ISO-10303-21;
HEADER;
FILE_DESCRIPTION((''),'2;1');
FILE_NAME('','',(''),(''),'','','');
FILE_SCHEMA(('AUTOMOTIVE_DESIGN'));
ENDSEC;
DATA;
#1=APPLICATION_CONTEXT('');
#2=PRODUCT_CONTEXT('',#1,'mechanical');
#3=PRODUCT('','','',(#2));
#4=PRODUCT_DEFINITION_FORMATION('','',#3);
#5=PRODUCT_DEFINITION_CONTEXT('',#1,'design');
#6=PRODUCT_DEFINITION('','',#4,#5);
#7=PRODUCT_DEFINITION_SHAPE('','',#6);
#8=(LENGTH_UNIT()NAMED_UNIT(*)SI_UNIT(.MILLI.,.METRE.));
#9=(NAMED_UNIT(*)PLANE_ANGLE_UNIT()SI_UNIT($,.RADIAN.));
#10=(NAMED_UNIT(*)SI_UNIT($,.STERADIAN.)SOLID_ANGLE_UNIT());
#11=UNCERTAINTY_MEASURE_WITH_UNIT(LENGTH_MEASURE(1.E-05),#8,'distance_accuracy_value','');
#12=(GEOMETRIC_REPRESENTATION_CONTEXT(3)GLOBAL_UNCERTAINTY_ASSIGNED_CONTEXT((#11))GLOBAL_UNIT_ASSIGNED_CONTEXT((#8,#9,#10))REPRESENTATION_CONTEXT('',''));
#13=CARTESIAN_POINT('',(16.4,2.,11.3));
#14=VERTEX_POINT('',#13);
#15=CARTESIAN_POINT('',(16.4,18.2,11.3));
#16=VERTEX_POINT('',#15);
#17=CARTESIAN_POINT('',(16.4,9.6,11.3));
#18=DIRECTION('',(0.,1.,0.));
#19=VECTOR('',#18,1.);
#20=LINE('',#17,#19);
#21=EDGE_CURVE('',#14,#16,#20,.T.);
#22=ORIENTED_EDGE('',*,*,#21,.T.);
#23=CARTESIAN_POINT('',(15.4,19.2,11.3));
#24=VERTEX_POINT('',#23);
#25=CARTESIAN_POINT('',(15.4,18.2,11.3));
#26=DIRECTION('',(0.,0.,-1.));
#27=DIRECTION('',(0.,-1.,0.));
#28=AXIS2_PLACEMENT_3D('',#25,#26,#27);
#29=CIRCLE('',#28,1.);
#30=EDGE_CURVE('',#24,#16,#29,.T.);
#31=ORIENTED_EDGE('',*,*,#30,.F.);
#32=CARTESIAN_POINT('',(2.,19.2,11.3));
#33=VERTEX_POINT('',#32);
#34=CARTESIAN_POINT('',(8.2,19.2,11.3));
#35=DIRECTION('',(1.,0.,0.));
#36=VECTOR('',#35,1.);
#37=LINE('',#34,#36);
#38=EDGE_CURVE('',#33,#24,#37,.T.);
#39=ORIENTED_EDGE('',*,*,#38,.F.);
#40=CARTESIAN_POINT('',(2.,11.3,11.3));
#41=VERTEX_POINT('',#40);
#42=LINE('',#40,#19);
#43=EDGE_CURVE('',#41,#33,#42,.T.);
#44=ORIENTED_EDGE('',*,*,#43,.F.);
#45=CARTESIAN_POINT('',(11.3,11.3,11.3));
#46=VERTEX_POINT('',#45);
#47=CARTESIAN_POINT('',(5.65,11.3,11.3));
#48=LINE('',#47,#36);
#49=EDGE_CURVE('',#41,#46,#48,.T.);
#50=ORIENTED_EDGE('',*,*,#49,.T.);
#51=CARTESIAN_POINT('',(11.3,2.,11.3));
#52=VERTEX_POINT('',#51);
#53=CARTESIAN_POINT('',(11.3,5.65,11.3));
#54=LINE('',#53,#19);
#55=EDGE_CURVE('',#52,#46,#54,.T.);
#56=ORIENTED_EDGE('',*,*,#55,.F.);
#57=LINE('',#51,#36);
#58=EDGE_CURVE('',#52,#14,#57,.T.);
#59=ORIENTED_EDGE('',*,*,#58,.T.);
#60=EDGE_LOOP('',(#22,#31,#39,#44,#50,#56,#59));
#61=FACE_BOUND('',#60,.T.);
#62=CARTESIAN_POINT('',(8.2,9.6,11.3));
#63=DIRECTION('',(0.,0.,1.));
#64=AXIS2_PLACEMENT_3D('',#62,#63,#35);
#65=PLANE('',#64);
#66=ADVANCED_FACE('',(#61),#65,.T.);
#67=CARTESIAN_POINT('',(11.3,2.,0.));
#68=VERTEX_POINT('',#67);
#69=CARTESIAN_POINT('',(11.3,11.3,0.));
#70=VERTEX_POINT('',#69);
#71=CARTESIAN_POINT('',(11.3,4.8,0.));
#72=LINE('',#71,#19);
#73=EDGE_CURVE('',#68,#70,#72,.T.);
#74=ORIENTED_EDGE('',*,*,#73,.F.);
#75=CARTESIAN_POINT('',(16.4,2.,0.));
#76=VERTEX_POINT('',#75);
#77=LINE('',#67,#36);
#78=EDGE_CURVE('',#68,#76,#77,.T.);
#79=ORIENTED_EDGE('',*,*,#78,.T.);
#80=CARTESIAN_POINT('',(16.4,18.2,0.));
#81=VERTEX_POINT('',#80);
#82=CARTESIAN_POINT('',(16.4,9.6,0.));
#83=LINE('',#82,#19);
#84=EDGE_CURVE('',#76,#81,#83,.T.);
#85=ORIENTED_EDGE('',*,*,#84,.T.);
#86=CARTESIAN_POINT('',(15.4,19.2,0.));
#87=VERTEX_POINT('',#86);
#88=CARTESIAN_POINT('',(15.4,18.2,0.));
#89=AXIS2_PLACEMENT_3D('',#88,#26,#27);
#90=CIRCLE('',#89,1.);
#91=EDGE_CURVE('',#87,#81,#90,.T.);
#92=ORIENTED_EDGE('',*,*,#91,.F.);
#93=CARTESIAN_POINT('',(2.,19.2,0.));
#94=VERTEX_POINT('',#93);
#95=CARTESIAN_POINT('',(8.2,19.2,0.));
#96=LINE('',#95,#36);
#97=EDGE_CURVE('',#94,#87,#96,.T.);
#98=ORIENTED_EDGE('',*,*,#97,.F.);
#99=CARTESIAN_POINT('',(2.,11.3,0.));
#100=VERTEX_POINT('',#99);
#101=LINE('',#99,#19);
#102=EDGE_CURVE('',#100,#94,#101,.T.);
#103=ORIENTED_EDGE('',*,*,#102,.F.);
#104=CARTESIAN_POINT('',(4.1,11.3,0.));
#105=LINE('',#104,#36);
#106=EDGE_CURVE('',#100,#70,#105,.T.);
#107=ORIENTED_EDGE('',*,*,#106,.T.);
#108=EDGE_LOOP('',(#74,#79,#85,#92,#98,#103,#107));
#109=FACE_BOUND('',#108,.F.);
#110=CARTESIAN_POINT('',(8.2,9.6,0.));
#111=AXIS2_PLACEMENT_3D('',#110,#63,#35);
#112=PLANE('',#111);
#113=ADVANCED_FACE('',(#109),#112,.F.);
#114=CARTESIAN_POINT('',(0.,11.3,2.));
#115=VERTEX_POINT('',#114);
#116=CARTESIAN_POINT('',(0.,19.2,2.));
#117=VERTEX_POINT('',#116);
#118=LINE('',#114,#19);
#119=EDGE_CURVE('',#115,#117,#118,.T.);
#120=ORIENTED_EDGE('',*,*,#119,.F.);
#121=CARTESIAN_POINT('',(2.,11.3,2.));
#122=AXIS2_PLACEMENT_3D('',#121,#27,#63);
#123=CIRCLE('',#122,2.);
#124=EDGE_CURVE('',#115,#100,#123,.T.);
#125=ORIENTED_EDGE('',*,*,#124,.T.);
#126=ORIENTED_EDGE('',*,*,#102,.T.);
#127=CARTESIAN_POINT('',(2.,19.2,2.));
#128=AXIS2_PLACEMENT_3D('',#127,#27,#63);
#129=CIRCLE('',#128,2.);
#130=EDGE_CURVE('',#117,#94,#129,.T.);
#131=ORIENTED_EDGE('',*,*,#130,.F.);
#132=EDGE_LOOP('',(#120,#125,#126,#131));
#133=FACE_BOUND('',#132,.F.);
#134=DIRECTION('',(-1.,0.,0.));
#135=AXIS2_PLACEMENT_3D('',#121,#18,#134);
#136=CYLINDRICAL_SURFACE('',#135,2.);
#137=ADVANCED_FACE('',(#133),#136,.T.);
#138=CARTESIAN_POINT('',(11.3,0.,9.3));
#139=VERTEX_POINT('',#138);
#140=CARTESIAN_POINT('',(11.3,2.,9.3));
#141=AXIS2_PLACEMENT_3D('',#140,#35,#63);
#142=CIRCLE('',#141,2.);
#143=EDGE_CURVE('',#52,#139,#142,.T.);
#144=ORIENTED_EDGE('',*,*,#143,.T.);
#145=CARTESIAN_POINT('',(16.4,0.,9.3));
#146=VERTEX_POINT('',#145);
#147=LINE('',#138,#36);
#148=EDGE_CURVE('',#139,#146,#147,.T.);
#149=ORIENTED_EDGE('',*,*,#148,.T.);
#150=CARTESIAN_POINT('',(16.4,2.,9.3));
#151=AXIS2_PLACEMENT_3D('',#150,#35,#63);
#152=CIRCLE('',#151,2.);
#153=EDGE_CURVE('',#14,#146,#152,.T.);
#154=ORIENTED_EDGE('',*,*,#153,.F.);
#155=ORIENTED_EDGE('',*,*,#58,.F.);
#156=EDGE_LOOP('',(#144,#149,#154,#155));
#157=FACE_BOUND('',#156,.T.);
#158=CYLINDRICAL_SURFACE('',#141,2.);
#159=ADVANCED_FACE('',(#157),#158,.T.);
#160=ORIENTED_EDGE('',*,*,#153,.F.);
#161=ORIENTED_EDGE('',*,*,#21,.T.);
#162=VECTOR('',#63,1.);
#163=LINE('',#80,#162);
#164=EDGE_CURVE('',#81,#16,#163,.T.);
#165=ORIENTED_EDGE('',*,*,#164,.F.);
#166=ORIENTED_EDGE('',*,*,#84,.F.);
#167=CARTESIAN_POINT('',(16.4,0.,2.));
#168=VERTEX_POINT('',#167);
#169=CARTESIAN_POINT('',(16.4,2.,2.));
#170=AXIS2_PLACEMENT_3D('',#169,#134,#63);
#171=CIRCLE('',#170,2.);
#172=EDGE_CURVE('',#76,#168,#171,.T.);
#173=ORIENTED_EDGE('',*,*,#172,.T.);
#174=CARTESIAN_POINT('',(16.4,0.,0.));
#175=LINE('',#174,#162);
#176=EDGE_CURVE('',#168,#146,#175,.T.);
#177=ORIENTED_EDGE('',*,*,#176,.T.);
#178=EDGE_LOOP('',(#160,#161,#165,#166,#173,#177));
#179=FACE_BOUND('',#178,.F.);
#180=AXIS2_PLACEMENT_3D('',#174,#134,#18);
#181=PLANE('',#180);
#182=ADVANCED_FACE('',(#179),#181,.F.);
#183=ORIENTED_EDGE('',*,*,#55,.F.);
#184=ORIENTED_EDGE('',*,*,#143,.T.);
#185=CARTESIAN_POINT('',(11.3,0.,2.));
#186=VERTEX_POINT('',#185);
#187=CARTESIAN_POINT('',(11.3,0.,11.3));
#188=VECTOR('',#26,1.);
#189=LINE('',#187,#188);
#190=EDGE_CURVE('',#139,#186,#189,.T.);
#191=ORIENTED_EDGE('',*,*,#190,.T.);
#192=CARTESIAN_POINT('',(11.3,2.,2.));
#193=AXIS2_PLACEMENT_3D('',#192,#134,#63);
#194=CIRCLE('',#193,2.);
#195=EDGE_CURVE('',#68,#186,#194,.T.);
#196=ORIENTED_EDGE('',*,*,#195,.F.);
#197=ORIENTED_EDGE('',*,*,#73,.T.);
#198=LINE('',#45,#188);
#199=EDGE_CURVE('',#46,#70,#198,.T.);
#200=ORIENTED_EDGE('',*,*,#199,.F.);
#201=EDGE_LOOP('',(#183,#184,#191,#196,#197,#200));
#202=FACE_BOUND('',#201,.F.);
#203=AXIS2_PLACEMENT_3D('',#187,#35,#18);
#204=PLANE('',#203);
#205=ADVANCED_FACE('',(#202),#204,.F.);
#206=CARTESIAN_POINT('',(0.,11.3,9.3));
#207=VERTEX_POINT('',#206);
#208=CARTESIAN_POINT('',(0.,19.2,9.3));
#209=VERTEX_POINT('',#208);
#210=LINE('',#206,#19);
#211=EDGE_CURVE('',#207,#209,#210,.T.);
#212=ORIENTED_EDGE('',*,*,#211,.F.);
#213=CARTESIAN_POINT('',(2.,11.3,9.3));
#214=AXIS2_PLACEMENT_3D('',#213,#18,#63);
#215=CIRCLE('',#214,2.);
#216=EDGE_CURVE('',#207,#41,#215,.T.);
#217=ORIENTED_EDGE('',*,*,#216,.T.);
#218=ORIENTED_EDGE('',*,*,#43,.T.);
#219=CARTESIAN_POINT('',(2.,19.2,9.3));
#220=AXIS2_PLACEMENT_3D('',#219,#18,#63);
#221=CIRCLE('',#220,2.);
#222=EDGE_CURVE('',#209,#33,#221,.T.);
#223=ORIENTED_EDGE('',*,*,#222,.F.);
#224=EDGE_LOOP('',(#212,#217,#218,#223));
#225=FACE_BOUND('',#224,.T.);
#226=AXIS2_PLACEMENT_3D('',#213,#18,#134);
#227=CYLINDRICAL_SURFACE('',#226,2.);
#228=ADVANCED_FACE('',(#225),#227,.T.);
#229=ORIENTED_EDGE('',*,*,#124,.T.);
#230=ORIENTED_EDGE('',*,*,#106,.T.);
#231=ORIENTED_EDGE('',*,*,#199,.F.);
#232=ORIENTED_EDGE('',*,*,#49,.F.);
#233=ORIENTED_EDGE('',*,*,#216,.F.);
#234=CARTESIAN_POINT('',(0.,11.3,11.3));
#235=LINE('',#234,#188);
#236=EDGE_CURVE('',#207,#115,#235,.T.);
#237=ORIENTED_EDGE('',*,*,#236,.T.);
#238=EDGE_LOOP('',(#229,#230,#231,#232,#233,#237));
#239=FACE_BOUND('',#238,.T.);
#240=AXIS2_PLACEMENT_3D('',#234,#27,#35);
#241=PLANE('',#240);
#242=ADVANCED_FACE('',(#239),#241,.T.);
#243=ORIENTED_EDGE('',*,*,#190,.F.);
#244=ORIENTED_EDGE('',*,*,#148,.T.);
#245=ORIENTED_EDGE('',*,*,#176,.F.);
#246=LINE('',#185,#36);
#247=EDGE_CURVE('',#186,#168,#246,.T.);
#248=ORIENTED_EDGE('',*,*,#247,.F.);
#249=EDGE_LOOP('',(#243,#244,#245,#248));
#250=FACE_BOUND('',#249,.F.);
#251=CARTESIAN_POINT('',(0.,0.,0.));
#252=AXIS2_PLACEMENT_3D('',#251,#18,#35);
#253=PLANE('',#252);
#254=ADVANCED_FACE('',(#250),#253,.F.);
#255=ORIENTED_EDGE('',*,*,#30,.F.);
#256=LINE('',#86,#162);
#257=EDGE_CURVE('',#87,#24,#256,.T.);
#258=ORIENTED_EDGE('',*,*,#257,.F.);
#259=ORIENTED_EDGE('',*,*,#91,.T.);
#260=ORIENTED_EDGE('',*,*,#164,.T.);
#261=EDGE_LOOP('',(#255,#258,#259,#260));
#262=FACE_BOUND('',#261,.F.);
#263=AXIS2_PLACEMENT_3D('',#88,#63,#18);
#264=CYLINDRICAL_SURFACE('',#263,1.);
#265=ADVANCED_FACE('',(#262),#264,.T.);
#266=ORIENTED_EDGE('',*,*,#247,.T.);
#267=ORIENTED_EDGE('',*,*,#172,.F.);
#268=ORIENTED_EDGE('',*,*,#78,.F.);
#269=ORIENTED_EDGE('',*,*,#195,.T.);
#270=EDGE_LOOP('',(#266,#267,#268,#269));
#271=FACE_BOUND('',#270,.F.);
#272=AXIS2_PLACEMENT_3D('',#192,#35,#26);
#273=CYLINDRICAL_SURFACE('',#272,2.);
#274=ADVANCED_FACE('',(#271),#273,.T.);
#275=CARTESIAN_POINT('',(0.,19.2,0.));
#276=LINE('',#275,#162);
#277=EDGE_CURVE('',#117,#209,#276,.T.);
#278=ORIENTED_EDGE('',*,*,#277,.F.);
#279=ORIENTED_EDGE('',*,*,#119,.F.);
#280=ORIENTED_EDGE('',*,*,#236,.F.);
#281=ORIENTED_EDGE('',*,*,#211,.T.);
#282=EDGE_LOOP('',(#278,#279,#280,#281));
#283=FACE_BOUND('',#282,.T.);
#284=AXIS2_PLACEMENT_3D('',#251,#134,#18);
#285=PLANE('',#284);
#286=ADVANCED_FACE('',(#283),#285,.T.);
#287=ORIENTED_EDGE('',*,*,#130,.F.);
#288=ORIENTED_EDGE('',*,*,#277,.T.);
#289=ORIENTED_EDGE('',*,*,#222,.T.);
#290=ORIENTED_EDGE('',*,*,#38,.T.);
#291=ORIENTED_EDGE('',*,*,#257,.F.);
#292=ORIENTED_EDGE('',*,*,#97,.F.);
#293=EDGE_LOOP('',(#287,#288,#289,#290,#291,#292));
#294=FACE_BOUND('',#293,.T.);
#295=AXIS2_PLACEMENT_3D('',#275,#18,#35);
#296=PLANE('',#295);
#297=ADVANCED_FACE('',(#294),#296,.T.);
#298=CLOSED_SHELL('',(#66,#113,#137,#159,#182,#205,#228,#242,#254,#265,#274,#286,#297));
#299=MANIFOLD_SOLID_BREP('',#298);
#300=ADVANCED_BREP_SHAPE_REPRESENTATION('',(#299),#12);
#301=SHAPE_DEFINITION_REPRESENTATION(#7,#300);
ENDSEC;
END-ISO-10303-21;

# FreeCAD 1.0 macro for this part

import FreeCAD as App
import Part
import Sketcher


def edges_at(feature, points):
    """Names of the edges that pass closest to the given points."""
    edges = feature.Shape.Edges
    near = lambda p: min(range(len(edges)), key=lambda i: edges[i].distToShape(Part.Vertex(*p))[0])
    return sorted({f"Edge{near(p) + 1}" for p in points})


def add_polygon(sketch, points):
    """Adds a closed chain of lines whose ends are joined by coincident constraints."""
    first, n = sketch.GeometryCount, len(points)
    for a, b in zip(points, points[1:] + points[:1]):
        sketch.addGeometry(Part.LineSegment(App.Vector(*a, 0), App.Vector(*b, 0)), False)
    for i in range(n):
        sketch.addConstraint(Sketcher.Constraint("Coincident", first + i, 2, first + (i + 1) % n, 1))

doc = App.newDocument("Part")
body = doc.addObject("PartDesign::Body", "Body")

# Sketch on XY plane
sketch1 = doc.addObject("Sketcher::SketchObject", "Sketch")
body.addObject(sketch1)
sketch1.AttachmentSupport = (doc.XY_Plane, [""])
sketch1.MapMode = "FlatFace"
add_polygon(sketch1, [(0, 19.2), (0, 0), (16.4, 0), (16.4, 19.2)])  # lines 0-3
sketch1.addConstraint([
    Sketcher.Constraint("Vertical", 0),
    Sketcher.Constraint("Horizontal", 1),
    Sketcher.Constraint("Vertical", 2),
    Sketcher.Constraint("Horizontal", 3),
    Sketcher.Constraint("Coincident", 0, 2, -1, 1),
    Sketcher.Constraint("DistanceX", 1, 1, 1, 2, 16.4),
    Sketcher.Constraint("DistanceY", 0, 2, 0, 1, 19.2),
])
pad1 = doc.addObject("PartDesign::Pad", "Pad")
body.addObject(pad1)
pad1.Profile = sketch1
pad1.Length = 11.3

# Sketch on XY plane
sketch2 = doc.addObject("Sketcher::SketchObject", "Sketch001")
body.addObject(sketch2)
sketch2.AttachmentSupport = (doc.XY_Plane, [""])
sketch2.MapMode = "FlatFace"
sketch2.AttachmentOffset = App.Placement(App.Vector(0, 0, 11.3), App.Rotation())
add_polygon(sketch2, [(0, 11.3), (0, 0), (11.3, 0), (11.3, 11.3)])  # lines 0-3
sketch2.addConstraint([
    Sketcher.Constraint("Vertical", 0),
    Sketcher.Constraint("Horizontal", 1),
    Sketcher.Constraint("Vertical", 2),
    Sketcher.Constraint("Horizontal", 3),
    Sketcher.Constraint("Coincident", 0, 2, -1, 1),
    Sketcher.Constraint("Equal", 3, 0),
    Sketcher.Constraint("DistanceX", 1, 1, 1, 2, 11.3),
])
pocket1 = doc.addObject("PartDesign::Pocket", "Pocket")
body.addObject(pocket1)
pocket1.Profile = sketch2
pocket1.Length = 25
doc.recompute()

fillet = doc.addObject("PartDesign::Fillet", "Fillet")
body.addObject(fillet)
fillet.Base = (pocket1, edges_at(pocket1, [
    (13.85, 0, 0),
    (0, 15.25, 0),
    (13.85, 0, 11.3),
    (0, 15.25, 11.3),
]))
fillet.Radius = 2
doc.recompute()

fillet2 = doc.addObject("PartDesign::Fillet", "Fillet001")
body.addObject(fillet2)
fillet2.Base = (fillet, edges_at(fillet, [(16.4, 19.2, 5.65)]))
fillet2.Radius = 1

doc.recompute()
